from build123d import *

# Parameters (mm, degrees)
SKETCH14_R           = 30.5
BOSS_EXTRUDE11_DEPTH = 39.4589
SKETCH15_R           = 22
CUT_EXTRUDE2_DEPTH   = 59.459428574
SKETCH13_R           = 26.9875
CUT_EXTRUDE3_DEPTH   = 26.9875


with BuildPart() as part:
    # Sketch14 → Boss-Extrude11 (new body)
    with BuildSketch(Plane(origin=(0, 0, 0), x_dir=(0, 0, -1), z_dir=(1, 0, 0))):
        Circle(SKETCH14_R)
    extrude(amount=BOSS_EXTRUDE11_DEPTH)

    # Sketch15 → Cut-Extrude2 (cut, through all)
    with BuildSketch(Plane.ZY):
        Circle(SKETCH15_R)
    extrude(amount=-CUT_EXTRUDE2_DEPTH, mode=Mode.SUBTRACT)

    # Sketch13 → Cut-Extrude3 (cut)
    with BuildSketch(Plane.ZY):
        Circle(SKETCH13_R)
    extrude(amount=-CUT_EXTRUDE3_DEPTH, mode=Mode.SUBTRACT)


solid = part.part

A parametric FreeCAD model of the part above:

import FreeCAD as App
import Part
import Sketcher
Q = App.Units.Quantity

doc = App.newDocument("Part")
body = doc.addObject("PartDesign::Body", "Body")

# Sketch on YZ plane
sketch1 = doc.addObject("Sketcher::SketchObject", "Sketch")
body.addObject(sketch1)
sketch1.AttachmentSupport = (doc.YZ_Plane, [""])
sketch1.MapMode = "FlatFace"
sketch1.addGeometry(Part.Circle(App.Vector(0, 0, 0), App.Vector(0, 0, 1), 30), False)
sketch1.addConstraint(Sketcher.Constraint("Coincident", 0, 3, -1, 1))
sketch1.addConstraint(Sketcher.Constraint("Diameter", 0, Q("61 mm")))
pad1 = doc.addObject("PartDesign::Pad", "Pad")
body.addObject(pad1)
pad1.Profile = sketch1
pad1.Length = 39.4589

# Sketch on YZ plane
sketch2 = doc.addObject("Sketcher::SketchObject", "Sketch001")
body.addObject(sketch2)
sketch2.AttachmentSupport = (doc.YZ_Plane, [""])
sketch2.MapMode = "FlatFace"
sketch2.addGeometry(Part.Circle(App.Vector(0, 0, 0), App.Vector(0, 0, 1), 22), False)
sketch2.addConstraint(Sketcher.Constraint("Coincident", 0, 3, -1, 1))
sketch2.addConstraint(Sketcher.Constraint("Diameter", 0, Q("44 mm")))
pocket1 = doc.addObject("PartDesign::Pocket", "Pocket")
body.addObject(pocket1)
pocket1.Profile = sketch2
pocket1.Type = "ThroughAll"
pocket1.Reversed = True

# Sketch on YZ plane
sketch3 = doc.addObject("Sketcher::SketchObject", "Sketch002")
body.addObject(sketch3)
sketch3.AttachmentSupport = (doc.YZ_Plane, [""])
sketch3.MapMode = "FlatFace"
sketch3.addGeometry(Part.Circle(App.Vector(0, 0, 0), App.Vector(0, 0, 1), 27), False)
sketch3.addConstraint(Sketcher.Constraint("Coincident", 0, 3, -1, 1))
sketch3.addConstraint(Sketcher.Constraint("Diameter", 0, Q("53.975 mm")))
pocket2 = doc.addObject("PartDesign::Pocket", "Pocket001")
body.addObject(pocket2)
pocket2.Profile = sketch3
pocket2.Length = 26.9875
pocket2.Reversed = True

doc.recompute()
